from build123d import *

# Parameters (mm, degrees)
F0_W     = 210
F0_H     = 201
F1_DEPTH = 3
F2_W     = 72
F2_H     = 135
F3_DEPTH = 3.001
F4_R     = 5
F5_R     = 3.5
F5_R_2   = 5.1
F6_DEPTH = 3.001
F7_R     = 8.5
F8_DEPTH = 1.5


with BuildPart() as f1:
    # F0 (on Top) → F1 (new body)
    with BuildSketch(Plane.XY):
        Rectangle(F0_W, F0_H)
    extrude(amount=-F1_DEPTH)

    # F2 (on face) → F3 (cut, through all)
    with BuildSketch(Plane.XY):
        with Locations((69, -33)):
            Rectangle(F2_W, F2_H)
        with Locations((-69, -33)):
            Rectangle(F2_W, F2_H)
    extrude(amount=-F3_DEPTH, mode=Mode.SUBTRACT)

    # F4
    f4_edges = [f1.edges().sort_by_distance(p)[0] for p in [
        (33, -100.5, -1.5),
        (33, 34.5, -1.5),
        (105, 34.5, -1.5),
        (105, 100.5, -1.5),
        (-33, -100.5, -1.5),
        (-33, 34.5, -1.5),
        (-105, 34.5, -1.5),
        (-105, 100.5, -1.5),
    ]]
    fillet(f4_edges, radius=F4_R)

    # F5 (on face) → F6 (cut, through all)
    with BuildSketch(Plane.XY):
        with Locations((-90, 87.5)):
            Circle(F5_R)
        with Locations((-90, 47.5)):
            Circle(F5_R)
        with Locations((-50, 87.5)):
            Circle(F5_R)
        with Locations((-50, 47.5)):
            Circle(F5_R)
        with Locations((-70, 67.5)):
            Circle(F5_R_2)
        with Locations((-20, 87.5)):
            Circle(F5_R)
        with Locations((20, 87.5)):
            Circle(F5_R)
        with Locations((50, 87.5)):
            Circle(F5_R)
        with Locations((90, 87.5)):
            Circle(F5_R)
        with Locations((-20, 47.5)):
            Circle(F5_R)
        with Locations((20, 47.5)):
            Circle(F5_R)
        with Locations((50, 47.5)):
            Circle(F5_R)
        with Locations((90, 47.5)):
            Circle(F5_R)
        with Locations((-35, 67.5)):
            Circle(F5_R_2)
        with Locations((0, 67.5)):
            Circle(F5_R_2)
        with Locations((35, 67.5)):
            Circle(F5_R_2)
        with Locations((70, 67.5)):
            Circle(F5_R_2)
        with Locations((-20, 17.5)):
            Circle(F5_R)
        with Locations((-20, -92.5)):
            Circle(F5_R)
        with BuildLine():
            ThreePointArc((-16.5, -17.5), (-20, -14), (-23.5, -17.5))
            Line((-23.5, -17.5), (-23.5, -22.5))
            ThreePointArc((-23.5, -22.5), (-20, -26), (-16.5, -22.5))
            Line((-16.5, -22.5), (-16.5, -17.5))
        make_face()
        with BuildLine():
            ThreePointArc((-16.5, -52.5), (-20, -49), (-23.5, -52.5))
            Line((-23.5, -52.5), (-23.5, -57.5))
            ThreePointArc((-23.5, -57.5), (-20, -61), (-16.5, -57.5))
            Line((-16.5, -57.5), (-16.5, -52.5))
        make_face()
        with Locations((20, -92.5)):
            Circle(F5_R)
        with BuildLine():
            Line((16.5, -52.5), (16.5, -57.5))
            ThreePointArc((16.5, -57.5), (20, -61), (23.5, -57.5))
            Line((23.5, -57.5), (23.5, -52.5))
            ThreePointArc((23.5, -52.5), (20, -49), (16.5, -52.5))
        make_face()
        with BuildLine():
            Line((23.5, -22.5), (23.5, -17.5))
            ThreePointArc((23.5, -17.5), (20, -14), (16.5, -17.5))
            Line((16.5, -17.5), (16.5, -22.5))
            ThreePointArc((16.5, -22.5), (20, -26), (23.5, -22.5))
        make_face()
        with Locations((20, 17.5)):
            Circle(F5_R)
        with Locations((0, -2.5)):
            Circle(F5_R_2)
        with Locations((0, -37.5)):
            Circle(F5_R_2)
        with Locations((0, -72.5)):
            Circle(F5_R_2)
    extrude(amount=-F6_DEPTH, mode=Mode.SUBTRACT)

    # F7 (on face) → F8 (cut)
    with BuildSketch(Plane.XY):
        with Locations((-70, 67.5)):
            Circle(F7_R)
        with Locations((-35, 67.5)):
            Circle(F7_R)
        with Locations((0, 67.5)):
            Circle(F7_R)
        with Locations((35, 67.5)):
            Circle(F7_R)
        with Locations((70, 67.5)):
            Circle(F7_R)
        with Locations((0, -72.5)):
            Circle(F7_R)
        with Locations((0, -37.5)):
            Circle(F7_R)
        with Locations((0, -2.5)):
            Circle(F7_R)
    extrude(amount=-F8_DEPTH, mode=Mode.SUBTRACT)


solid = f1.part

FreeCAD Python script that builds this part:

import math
import FreeCAD as App
import Part
import Sketcher


def edges_at(feature, points):
    """Names of the edges that pass closest to the given points."""
    edges = feature.Shape.Edges
    near = lambda p: min(range(len(edges)), key=lambda i: edges[i].distToShape(Part.Vertex(*p))[0])
    return sorted({f"Edge{near(p) + 1}" for p in points})


def add_polygon(sketch, points):
    """Adds a closed chain of lines whose ends are joined by coincident constraints."""
    first, n = sketch.GeometryCount, len(points)
    for a, b in zip(points, points[1:] + points[:1]):
        sketch.addGeometry(Part.LineSegment(App.Vector(*a, 0), App.Vector(*b, 0)), False)
    for i in range(n):
        sketch.addConstraint(Sketcher.Constraint("Coincident", first + i, 2, first + (i + 1) % n, 1))

doc = App.newDocument("Part")
params = doc.addObject("Spreadsheet::Sheet", "Params")
for row, (alias, value) in enumerate([
    ("sketch1_width", "210 mm"),
    ("sketch1_height", "201 mm"),
    ("pad1_length", "3 mm"),
    ("sketch2_width", "72 mm"),
    ("sketch2_height", "135 mm"),
    ("fillet_radius", "5 mm"),
    ("sketch3_diameter", "7 mm"),
    ("sketch3_diameter2", "10.2 mm"),
    ("sketch3_height", "5 mm"),
    ("sketch4_diameter", "17 mm"),
    ("pocket3_length", "1.5 mm"),
], start=1):
    params.set(f"A{row}", alias)
    params.set(f"B{row}", "=" + value)
    params.setAlias(f"B{row}", alias)

body = doc.addObject("PartDesign::Body", "Body")

sketch1 = body.newObject("Sketcher::SketchObject", "Sketch")
sketch1.AttachmentSupport = (doc.getObject("XY_Plane"), [""])
sketch1.MapMode = "FlatFace"
add_polygon(sketch1, [(-105, 100), (-105, -100), (105, -100), (105, 100)])
sketch1.addConstraint([
    Sketcher.Constraint("Vertical", 0),
    Sketcher.Constraint("Horizontal", 1),
    Sketcher.Constraint("Vertical", 2),
    Sketcher.Constraint("Horizontal", 3),
    Sketcher.Constraint("Symmetric", 0, 2, 2, 2, -1, 1),
    Sketcher.Constraint("DistanceX", 1, 1, 1, 2, 210.0),
    Sketcher.Constraint("DistanceY", 0, 2, 0, 1, 201.0),
])
sketch1.setExpression("Constraints[9]", "Params.sketch1_width")
sketch1.setExpression("Constraints[10]", "Params.sketch1_height")
pad1 = body.newObject("PartDesign::Pad", "Pad")
pad1.Profile = sketch1
pad1.setExpression("Length", "Params.pad1_length")
pad1.Reversed = True

sketch2 = body.newObject("Sketcher::SketchObject", "Sketch001")
sketch2.AttachmentSupport = (doc.getObject("XY_Plane"), [""])
sketch2.MapMode = "FlatFace"
add_polygon(sketch2, [(33, 34), (33, -100), (105, -100), (105, 34)])
add_polygon(sketch2, [(-105, 34), (-105, -100), (-33, -100), (-33, 34)])
sketch2.addConstraint([
    Sketcher.Constraint("Vertical", 0),
    Sketcher.Constraint("Horizontal", 1),
    Sketcher.Constraint("Vertical", 2),
    Sketcher.Constraint("Horizontal", 3),
    Sketcher.Constraint("Vertical", 4),
    Sketcher.Constraint("Horizontal", 5),
    Sketcher.Constraint("Vertical", 6),
    Sketcher.Constraint("Horizontal", 7),
    Sketcher.Constraint("Symmetric", 1, 2, 4, 2, -2),
    Sketcher.Constraint("Symmetric", 3, 2, 6, 2, -2),
    Sketcher.Constraint("DistanceX", 1, 1, 1, 2, 72.0),
    Sketcher.Constraint("DistanceY", 0, 2, 0, 1, 135.0),
    Sketcher.Constraint("DistanceX", -1, 1, 0, 2, 33.0),
    Sketcher.Constraint("DistanceY", 0, 2, -1, 1, 100.5),
])
sketch2.setExpression("Constraints[18]", "Params.sketch2_width")
sketch2.setExpression("Constraints[19]", "Params.sketch2_height")
pocket1 = body.newObject("PartDesign::Pocket", "Pocket")
pocket1.Profile = sketch2
pocket1.Type = "ThroughAll"
doc.recompute()

fillet = body.newObject("PartDesign::Fillet", "Fillet")
fillet.Base = (pocket1, edges_at(pocket1, [
    (33, -100.5, -1.5),
    (33, 34.5, -1.5),
    (105, 34.5, -1.5),
    (105, 100.5, -1.5),
    (-33, -100.5, -1.5),
    (-33, 34.5, -1.5),
    (-105, 34.5, -1.5),
    (-105, 100.5, -1.5),
]))
fillet.setExpression("Radius", "Params.fillet_radius")

sketch3 = body.newObject("Sketcher::SketchObject", "Sketch002")
sketch3.AttachmentSupport = (doc.getObject("XY_Plane"), [""])
sketch3.MapMode = "FlatFace"
sketch3.addGeometry([
    Part.Circle(App.Vector(-90, 87.5, 0), App.Vector(0, 0, 1), 3.5),
    Part.Circle(App.Vector(-90, 47.5, 0), App.Vector(0, 0, 1), 3.5),
    Part.Circle(App.Vector(-50, 87.5, 0), App.Vector(0, 0, 1), 3.5),
    Part.Circle(App.Vector(-50, 47.5, 0), App.Vector(0, 0, 1), 3.5),
    Part.Circle(App.Vector(-70, 67.5, 0), App.Vector(0, 0, 1), 5.1),
    Part.Circle(App.Vector(-20, 87.5, 0), App.Vector(0, 0, 1), 3.5),
    Part.Circle(App.Vector(20, 87.5, 0), App.Vector(0, 0, 1), 3.5),
    Part.Circle(App.Vector(50, 87.5, 0), App.Vector(0, 0, 1), 3.5),
    Part.Circle(App.Vector(90, 87.5, 0), App.Vector(0, 0, 1), 3.5),
    Part.Circle(App.Vector(-20, 47.5, 0), App.Vector(0, 0, 1), 3.5),
    Part.Circle(App.Vector(20, 47.5, 0), App.Vector(0, 0, 1), 3.5),
    Part.Circle(App.Vector(50, 47.5, 0), App.Vector(0, 0, 1), 3.5),
    Part.Circle(App.Vector(90, 47.5, 0), App.Vector(0, 0, 1), 3.5),
    Part.Circle(App.Vector(-35, 67.5, 0), App.Vector(0, 0, 1), 5.1),
    Part.Circle(App.Vector(0, 67.5, 0), App.Vector(0, 0, 1), 5.1),
    Part.Circle(App.Vector(35, 67.5, 0), App.Vector(0, 0, 1), 5.1),
    Part.Circle(App.Vector(70, 67.5, 0), App.Vector(0, 0, 1), 5.1),
    Part.Circle(App.Vector(-20, 17.5, 0), App.Vector(0, 0, 1), 3.5),
    Part.Circle(App.Vector(-20, -92.5, 0), App.Vector(0, 0, 1), 3.5),
    Part.ArcOfCircle(Part.Circle(App.Vector(-20, -17.5, 0), App.Vector(0, 0, 1), 3.5), math.radians(0), math.radians(180)),
    Part.LineSegment(App.Vector(-23.5, -17.5, 0), App.Vector(-23.5, -22.5, 0)),
    Part.ArcOfCircle(Part.Circle(App.Vector(-20, -22.5, 0), App.Vector(0, 0, 1), 3.5), math.radians(180), math.radians(360)),
    Part.LineSegment(App.Vector(-16.5, -22.5, 0), App.Vector(-16.5, -17.5, 0)),
    Part.ArcOfCircle(Part.Circle(App.Vector(-20, -52.5, 0), App.Vector(0, 0, 1), 3.5), math.radians(0), math.radians(180)),
    Part.LineSegment(App.Vector(-23.5, -52.5, 0), App.Vector(-23.5, -57.5, 0)),
    Part.ArcOfCircle(Part.Circle(App.Vector(-20, -57.5, 0), App.Vector(0, 0, 1), 3.5), math.radians(180), math.radians(360)),
    Part.LineSegment(App.Vector(-16.5, -57.5, 0), App.Vector(-16.5, -52.5, 0)),
    Part.Circle(App.Vector(20, -92.5, 0), App.Vector(0, 0, 1), 3.5),
    Part.LineSegment(App.Vector(16.5, -52.5, 0), App.Vector(16.5, -57.5, 0)),
    Part.ArcOfCircle(Part.Circle(App.Vector(20, -57.5, 0), App.Vector(0, 0, 1), 3.5), math.radians(180), math.radians(360)),
    Part.LineSegment(App.Vector(23.5, -57.5, 0), App.Vector(23.5, -52.5, 0)),
    Part.ArcOfCircle(Part.Circle(App.Vector(20, -52.5, 0), App.Vector(0, 0, 1), 3.5), math.radians(0), math.radians(180)),
    Part.LineSegment(App.Vector(23.5, -22.5, 0), App.Vector(23.5, -17.5, 0)),
    Part.ArcOfCircle(Part.Circle(App.Vector(20, -17.5, 0), App.Vector(0, 0, 1), 3.5), math.radians(0), math.radians(180)),
    Part.LineSegment(App.Vector(16.5, -17.5, 0), App.Vector(16.5, -22.5, 0)),
    Part.ArcOfCircle(Part.Circle(App.Vector(20, -22.5, 0), App.Vector(0, 0, 1), 3.5), math.radians(180), math.radians(360)),
    Part.Circle(App.Vector(20, 17.5, 0), App.Vector(0, 0, 1), 3.5),
    Part.Circle(App.Vector(0, -2.5, 0), App.Vector(0, 0, 1), 5.1),
    Part.Circle(App.Vector(0, -37.5, 0), App.Vector(0, 0, 1), 5.1),
    Part.Circle(App.Vector(0, -72.5, 0), App.Vector(0, 0, 1), 5.1),
], False)
sketch3.addConstraint([
    Sketcher.Constraint("Tangent", 19, 2, 20, 1),
    Sketcher.Constraint("Tangent", 20, 2, 21, 1),
    Sketcher.Constraint("Tangent", 21, 2, 22, 1),
    Sketcher.Constraint("Tangent", 22, 2, 19, 1),
    Sketcher.Constraint("Tangent", 23, 2, 24, 1),
    Sketcher.Constraint("Tangent", 24, 2, 25, 1),
    Sketcher.Constraint("Tangent", 25, 2, 26, 1),
    Sketcher.Constraint("Tangent", 26, 2, 23, 1),
    Sketcher.Constraint("Tangent", 28, 2, 29, 1),
    Sketcher.Constraint("Tangent", 29, 2, 30, 1),
    Sketcher.Constraint("Tangent", 30, 2, 31, 1),
    Sketcher.Constraint("Tangent", 31, 2, 28, 1),
    Sketcher.Constraint("Tangent", 32, 2, 33, 1),
    Sketcher.Constraint("Tangent", 33, 2, 34, 1),
    Sketcher.Constraint("Tangent", 34, 2, 35, 1),
    Sketcher.Constraint("Tangent", 35, 2, 32, 1),
    Sketcher.Constraint("Vertical", 20),
    Sketcher.Constraint("Vertical", 22),
    Sketcher.Constraint("Vertical", 24),
    Sketcher.Constraint("Vertical", 26),
    Sketcher.Constraint("Vertical", 28),
    Sketcher.Constraint("Vertical", 30),
    Sketcher.Constraint("Vertical", 32),
    Sketcher.Constraint("Vertical", 34),
    Sketcher.Constraint("Equal", 0, 1),
    Sketcher.Constraint("Equal", 1, 2),
    Sketcher.Constraint("Equal", 2, 3),
    Sketcher.Constraint("Equal", 3, 5),
    Sketcher.Constraint("Equal", 5, 6),
    Sketcher.Constraint("Equal", 6, 7),
    Sketcher.Constraint("Equal", 7, 8),
    Sketcher.Constraint("Equal", 8, 9),
    Sketcher.Constraint("Equal", 9, 10),
    Sketcher.Constraint("Equal", 10, 11),
    Sketcher.Constraint("Equal", 11, 12),
    Sketcher.Constraint("Equal", 4, 13),
    Sketcher.Constraint("Equal", 13, 14),
    Sketcher.Constraint("Equal", 14, 15),
    Sketcher.Constraint("Equal", 15, 16),
    Sketcher.Constraint("Equal", 12, 17),
    Sketcher.Constraint("Equal", 17, 18),
    Sketcher.Constraint("Equal", 18, 19),
    Sketcher.Constraint("Equal", 21, 23),
    Sketcher.Constraint("Equal", 25, 27),
    Sketcher.Constraint("Equal", 27, 29),
    Sketcher.Constraint("Equal", 31, 33),
    Sketcher.Constraint("Equal", 35, 36),
    Sketcher.Constraint("Equal", 16, 37),
    Sketcher.Constraint("Equal", 37, 38),
    Sketcher.Constraint("Equal", 38, 39),
    Sketcher.Constraint("Symmetric", 17, 3, 33, 3, -1, 1),
    Sketcher.Constraint("Symmetric", 19, 3, 36, 3, -1, 1),
    Sketcher.Constraint("Symmetric", 5, 3, 6, 3, -2),
    Sketcher.Constraint("Symmetric", 2, 3, 7, 3, -2),
    Sketcher.Constraint("Symmetric", 0, 3, 8, 3, -2),
    Sketcher.Constraint("Symmetric", 9, 3, 10, 3, -2),
    Sketcher.Constraint("Symmetric", 3, 3, 11, 3, -2),
    Sketcher.Constraint("Symmetric", 1, 3, 12, 3, -2),
    Sketcher.Constraint("Symmetric", 13, 3, 15, 3, -2),
    Sketcher.Constraint("Symmetric", 4, 3, 16, 3, -2),
    Sketcher.Constraint("Symmetric", 18, 3, 27, 3, -2),
    Sketcher.Constraint("Symmetric", 25, 3, 29, 3, -2),
    Sketcher.Constraint("Symmetric", 19, 3, 33, 3, -2),
    Sketcher.Constraint("PointOnObject", 14, 3, -2),
    Sketcher.Constraint("PointOnObject", 37, 3, -2),
    Sketcher.Constraint("PointOnObject", 38, 3, -2),
    Sketcher.Constraint("PointOnObject", 39, 3, -2),
    Sketcher.Constraint("Horizontal", 0, 3, 2, 3),
    Sketcher.Constraint("Horizontal", 1, 3, 3, 3),
    Sketcher.Constraint("Horizontal", 2, 3, 5, 3),
    Sketcher.Constraint("Horizontal", 3, 3, 9, 3),
    Sketcher.Constraint("Horizontal", 4, 3, 13, 3),
    Sketcher.Constraint("Horizontal", 13, 3, 14, 3),
    Sketcher.Constraint("Horizontal", 23, 3, 31, 3),
    Sketcher.Constraint("Horizontal", 21, 3, 35, 3),
    Sketcher.Constraint("Vertical", 0, 3, 1, 3),
    Sketcher.Constraint("Vertical", 2, 3, 3, 3),
    Sketcher.Constraint("Vertical", 5, 3, 9, 3),
    Sketcher.Constraint("Vertical", 9, 3, 17, 3),
    Sketcher.Constraint("Vertical", 17, 3, 18, 3),
    Sketcher.Constraint("Vertical", 21, 3, 23, 3),
    Sketcher.Constraint("Equal", 22, 24),
    Sketcher.Constraint("Diameter", 0, 7.0),
    Sketcher.Constraint("Diameter", 4, 10.2),
    Sketcher.Constraint("DistanceY", 20, 2, 20, 1, 5.0),
    Sketcher.Constraint("DistanceX", 0, 3, -1, 1, 90.0),
    Sketcher.Constraint("DistanceX", 2, 3, -1, 1, 50.0),
    Sketcher.Constraint("DistanceX", 4, 3, -1, 1, 70.0),
    Sketcher.Constraint("DistanceX", 5, 3, -1, 1, 20.0),
    Sketcher.Constraint("DistanceX", 13, 3, -1, 1, 35.0),
    Sketcher.Constraint("DistanceY", 1, 3, 0, 3, 40.0),
    Sketcher.Constraint("DistanceY", 4, 3, 0, 3, 20.0),
    Sketcher.Constraint("DistanceY", 17, 3, 9, 3, 30.0),
    Sketcher.Constraint("DistanceY", 18, 3, 17, 3, 110.0),
    Sketcher.Constraint("DistanceY", 19, 3, 17, 3, 35.0),
    Sketcher.Constraint("DistanceY", 23, 3, 21, 3, 30.0),
    Sketcher.Constraint("DistanceY", 19, 3, 37, 3, 15.0),
    Sketcher.Constraint("DistanceY", 38, 3, 21, 3, 15.0),
    Sketcher.Constraint("DistanceY", 39, 3, 25, 3, 15.0),
])
sketch3.setExpression("Constraints[82]", "Params.sketch3_diameter")
sketch3.setExpression("Constraints[83]", "Params.sketch3_diameter2")
sketch3.setExpression("Constraints[84]", "Params.sketch3_height")
pocket2 = body.newObject("PartDesign::Pocket", "Pocket001")
pocket2.Profile = sketch3
pocket2.Type = "ThroughAll"

sketch4 = body.newObject("Sketcher::SketchObject", "Sketch003")
sketch4.AttachmentSupport = (doc.getObject("XY_Plane"), [""])
sketch4.MapMode = "FlatFace"
sketch4.addGeometry([
    Part.Circle(App.Vector(-70, 68, 0), App.Vector(0, 0, 1), 8),
    Part.Circle(App.Vector(-35, 68, 0), App.Vector(0, 0, 1), 8),
    Part.Circle(App.Vector(0, 68, 0), App.Vector(0, 0, 1), 8),
    Part.Circle(App.Vector(35, 68, 0), App.Vector(0, 0, 1), 8),
    Part.Circle(App.Vector(70, 68, 0), App.Vector(0, 0, 1), 8),
    Part.Circle(App.Vector(0, -72, 0), App.Vector(0, 0, 1), 8),
    Part.Circle(App.Vector(0, -38, 0), App.Vector(0, 0, 1), 8),
    Part.Circle(App.Vector(0, -2, 0), App.Vector(0, 0, 1), 8),
], False)
sketch4.addConstraint([
    Sketcher.Constraint("Equal", 0, 1),
    Sketcher.Constraint("Equal", 1, 2),
    Sketcher.Constraint("Equal", 2, 3),
    Sketcher.Constraint("Equal", 3, 4),
    Sketcher.Constraint("Equal", 4, 5),
    Sketcher.Constraint("Equal", 5, 6),
    Sketcher.Constraint("Equal", 6, 7),
    Sketcher.Constraint("Symmetric", 1, 3, 3, 3, -2),
    Sketcher.Constraint("Symmetric", 0, 3, 4, 3, -2),
    Sketcher.Constraint("PointOnObject", 2, 3, -2),
    Sketcher.Constraint("PointOnObject", 5, 3, -2),
    Sketcher.Constraint("PointOnObject", 6, 3, -2),
    Sketcher.Constraint("PointOnObject", 7, 3, -2),
    Sketcher.Constraint("Horizontal", 0, 3, 1, 3),
    Sketcher.Constraint("Horizontal", 1, 3, 2, 3),
    Sketcher.Constraint("Diameter", 0, 17.0),
    Sketcher.Constraint("DistanceX", 0, 3, -1, 1, 70.0),
    Sketcher.Constraint("DistanceX", 1, 3, -1, 1, 35.0),
    Sketcher.Constraint("DistanceY", 5, 3, 2, 3, 140.0),
    Sketcher.Constraint("DistanceY", 5, 3, 6, 3, 35.0),
    Sketcher.Constraint("DistanceY", 6, 3, 7, 3, 35.0),
    Sketcher.Constraint("DistanceY", -1, 1, 0, 3, 67.5),
])
sketch4.setExpression("Constraints[15]", "Params.sketch4_diameter")
pocket3 = body.newObject("PartDesign::Pocket", "Pocket002")
pocket3.Profile = sketch4
pocket3.setExpression("Length", "Params.pocket3_length")

doc.recompute()
